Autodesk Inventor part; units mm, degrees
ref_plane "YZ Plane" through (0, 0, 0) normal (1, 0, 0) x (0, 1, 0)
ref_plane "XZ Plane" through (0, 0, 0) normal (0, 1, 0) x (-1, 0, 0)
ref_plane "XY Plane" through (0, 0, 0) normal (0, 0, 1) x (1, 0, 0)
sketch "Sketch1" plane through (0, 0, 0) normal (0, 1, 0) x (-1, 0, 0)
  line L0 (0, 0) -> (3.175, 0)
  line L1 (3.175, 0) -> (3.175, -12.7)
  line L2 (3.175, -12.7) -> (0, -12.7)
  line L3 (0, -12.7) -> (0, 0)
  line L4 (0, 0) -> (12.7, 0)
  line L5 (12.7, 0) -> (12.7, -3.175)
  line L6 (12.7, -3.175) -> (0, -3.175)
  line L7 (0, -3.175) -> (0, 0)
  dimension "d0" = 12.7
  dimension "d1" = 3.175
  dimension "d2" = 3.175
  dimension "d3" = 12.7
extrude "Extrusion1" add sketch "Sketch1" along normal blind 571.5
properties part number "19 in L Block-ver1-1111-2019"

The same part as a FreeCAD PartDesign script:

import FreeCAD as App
import Part
import Sketcher

V = App.Vector
Q = App.Units.Quantity


def add_polygon(sketch, points):
    """Adds a closed chain of lines whose ends are joined by coincident constraints."""
    first, n = sketch.GeometryCount, len(points)
    for a, b in zip(points, points[1:] + points[:1]):
        sketch.addGeometry(Part.LineSegment(App.Vector(*a, 0), App.Vector(*b, 0)), False)
    for i in range(n):
        sketch.addConstraint(Sketcher.Constraint("Coincident", first + i, 2, first + (i + 1) % n, 1))

doc = App.newDocument("Part")
params = doc.addObject("Spreadsheet::Sheet", "Params")
for row, (alias, value) in enumerate([
    ("sketch1_width", "0.5 in"),
    ("sketch1_width2", "0.125 in"),
    ("pad1_length", "22.5 in"),
], start=1):
    params.set(f"A{row}", alias)
    params.set(f"B{row}", "=" + value)
    params.setAlias(f"B{row}", alias)

body = doc.addObject("PartDesign::Body", "Body")

sketch1 = doc.addObject("Sketcher::SketchObject", "Sketch")
body.addObject(sketch1)
sketch1.AttachmentSupport = (doc.XZ_Plane, [""])
sketch1.MapMode = "FlatFace"
add_polygon(sketch1, [(0, 0), (0, -12.7), (-3.2, -12.7), (-3.2, -3.2), (-12.7, -3.2), (-12.7, 0)])
sketch1.addConstraint([
    Sketcher.Constraint("Vertical", 0),
    Sketcher.Constraint("Horizontal", 1),
    Sketcher.Constraint("Vertical", 2),
    Sketcher.Constraint("Horizontal", 3),
    Sketcher.Constraint("Vertical", 4),
    Sketcher.Constraint("Horizontal", 5),
    Sketcher.Constraint("Coincident", 5, 2, -1, 1),
    Sketcher.Constraint("Equal", 5, 0),
    Sketcher.Constraint("Equal", 3, 2),
    Sketcher.Constraint("DistanceX", 5, 1, 5, 2, Q("0.5 in")),
    Sketcher.Constraint("DistanceX", 1, 2, 1, 1, Q("0.125 in")),
])
sketch1.setExpression("Constraints[15]", "Params.sketch1_width")
sketch1.setExpression("Constraints[16]", "Params.sketch1_width2")
pad1 = doc.addObject("PartDesign::Pad", "Pad")
body.addObject(pad1)
pad1.Profile = sketch1
pad1.setExpression("Length", "Params.pad1_length")
pad1.Reversed = True

doc.recompute()
